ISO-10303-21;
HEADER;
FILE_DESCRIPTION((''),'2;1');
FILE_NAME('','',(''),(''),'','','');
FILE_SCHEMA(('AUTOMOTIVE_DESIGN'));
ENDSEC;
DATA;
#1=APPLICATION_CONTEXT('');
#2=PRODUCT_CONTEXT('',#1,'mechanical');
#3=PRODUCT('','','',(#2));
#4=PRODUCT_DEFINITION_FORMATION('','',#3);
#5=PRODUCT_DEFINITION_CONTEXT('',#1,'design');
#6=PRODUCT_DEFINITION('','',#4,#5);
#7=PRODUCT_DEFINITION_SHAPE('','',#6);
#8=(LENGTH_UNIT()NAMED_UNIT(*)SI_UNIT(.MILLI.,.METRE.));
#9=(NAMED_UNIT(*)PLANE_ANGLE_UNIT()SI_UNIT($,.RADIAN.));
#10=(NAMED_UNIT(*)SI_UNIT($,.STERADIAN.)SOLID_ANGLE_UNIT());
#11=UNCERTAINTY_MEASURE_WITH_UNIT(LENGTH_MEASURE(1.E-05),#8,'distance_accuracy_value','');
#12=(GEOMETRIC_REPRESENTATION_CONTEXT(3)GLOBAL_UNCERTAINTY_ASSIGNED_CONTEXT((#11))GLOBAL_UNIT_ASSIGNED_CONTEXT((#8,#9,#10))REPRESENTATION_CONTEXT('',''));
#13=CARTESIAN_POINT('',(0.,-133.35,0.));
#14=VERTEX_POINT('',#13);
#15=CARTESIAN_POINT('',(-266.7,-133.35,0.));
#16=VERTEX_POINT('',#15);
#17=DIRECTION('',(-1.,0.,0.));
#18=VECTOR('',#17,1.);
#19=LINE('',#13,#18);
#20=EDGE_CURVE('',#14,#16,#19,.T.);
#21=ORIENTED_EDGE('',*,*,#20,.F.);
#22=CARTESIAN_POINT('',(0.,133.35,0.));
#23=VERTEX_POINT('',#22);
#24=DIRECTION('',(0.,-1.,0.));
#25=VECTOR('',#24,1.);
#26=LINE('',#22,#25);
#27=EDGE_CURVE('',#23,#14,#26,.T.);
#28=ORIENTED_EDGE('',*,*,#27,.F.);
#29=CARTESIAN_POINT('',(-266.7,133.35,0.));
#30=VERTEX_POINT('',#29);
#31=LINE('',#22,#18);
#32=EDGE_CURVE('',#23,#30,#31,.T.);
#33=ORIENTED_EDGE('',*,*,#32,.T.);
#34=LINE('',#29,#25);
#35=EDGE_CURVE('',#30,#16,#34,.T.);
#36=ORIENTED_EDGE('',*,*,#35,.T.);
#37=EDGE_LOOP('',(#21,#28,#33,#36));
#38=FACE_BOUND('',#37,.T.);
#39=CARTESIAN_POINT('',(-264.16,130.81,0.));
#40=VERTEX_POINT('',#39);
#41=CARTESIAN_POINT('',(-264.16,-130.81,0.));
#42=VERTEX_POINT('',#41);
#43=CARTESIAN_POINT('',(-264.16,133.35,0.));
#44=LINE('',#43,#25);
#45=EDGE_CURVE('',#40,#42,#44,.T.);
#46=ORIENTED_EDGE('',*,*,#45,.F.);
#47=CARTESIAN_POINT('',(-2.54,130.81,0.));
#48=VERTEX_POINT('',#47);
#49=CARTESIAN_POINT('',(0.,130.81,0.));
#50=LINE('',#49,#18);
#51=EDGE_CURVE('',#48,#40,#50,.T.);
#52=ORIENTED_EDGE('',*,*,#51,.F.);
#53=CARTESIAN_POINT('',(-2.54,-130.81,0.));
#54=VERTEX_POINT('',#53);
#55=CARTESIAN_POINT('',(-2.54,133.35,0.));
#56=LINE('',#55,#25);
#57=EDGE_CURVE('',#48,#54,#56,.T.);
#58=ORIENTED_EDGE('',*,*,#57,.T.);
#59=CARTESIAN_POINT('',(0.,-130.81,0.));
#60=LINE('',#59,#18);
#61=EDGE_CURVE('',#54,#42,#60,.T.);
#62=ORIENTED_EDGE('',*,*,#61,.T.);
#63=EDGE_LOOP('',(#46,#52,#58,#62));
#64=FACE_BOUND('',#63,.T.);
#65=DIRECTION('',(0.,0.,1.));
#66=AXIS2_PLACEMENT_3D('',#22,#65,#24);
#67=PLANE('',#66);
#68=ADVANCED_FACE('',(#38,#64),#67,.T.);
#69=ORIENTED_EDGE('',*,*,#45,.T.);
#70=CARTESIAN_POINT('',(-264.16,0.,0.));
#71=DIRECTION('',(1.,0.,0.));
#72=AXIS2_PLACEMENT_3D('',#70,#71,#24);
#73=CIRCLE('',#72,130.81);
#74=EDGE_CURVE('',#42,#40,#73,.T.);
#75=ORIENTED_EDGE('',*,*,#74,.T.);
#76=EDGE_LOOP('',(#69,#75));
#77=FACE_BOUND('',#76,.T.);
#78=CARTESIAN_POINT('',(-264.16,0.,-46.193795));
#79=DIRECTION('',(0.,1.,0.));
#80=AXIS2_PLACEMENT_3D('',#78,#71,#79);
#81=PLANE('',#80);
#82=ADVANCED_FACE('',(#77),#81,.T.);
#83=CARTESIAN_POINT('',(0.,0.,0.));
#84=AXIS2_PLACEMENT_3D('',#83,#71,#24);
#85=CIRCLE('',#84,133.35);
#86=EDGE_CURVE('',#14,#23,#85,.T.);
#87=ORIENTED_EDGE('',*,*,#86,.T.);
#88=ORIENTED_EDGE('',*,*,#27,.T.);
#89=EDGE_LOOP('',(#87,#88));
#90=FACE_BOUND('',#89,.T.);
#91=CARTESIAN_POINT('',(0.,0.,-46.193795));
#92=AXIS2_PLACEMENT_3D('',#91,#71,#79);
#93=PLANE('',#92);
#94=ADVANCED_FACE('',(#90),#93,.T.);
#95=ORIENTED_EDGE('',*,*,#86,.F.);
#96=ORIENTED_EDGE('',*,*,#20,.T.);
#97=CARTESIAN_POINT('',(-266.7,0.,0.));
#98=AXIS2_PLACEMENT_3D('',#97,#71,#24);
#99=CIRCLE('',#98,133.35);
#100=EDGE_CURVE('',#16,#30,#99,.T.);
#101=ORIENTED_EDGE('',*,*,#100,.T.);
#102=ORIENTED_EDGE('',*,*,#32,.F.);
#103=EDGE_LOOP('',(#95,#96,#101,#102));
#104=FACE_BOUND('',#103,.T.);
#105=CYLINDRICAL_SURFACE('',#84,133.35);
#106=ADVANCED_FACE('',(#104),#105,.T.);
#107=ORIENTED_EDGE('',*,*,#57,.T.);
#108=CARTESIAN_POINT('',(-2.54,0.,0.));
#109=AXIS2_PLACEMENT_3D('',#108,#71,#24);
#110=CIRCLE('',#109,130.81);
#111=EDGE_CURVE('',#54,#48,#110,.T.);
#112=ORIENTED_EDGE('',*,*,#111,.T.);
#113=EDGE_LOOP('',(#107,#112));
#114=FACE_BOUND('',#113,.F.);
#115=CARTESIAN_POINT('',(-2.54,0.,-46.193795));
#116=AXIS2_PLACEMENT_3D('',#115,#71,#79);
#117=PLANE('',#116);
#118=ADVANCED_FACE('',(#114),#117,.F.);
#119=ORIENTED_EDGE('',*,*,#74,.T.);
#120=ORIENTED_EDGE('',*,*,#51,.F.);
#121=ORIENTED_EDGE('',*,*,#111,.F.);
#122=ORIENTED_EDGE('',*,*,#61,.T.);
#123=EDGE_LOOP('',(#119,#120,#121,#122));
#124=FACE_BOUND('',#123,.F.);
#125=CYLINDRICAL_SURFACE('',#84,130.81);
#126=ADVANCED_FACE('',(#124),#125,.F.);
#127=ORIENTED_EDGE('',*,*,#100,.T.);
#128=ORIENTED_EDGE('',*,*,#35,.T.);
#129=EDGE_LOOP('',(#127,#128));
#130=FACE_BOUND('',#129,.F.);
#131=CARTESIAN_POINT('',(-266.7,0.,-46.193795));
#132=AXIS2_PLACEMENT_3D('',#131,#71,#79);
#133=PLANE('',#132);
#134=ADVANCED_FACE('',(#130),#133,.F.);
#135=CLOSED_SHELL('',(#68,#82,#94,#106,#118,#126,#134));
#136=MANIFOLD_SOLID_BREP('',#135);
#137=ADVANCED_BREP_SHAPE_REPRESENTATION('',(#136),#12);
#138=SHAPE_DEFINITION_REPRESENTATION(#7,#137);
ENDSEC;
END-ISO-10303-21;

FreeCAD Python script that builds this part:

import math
import FreeCAD as App
import Part
import Sketcher

V = App.Vector
Q = App.Units.Quantity


def faces_at(feature, points):
    """Names of the faces that lie closest to the given points."""
    faces = feature.Shape.Faces
    near = lambda p: min(range(len(faces)), key=lambda i: faces[i].distToShape(Part.Vertex(*p))[0])
    return sorted({f"Face{near(p) + 1}" for p in points})

doc = App.newDocument("Part")
params = doc.addObject("Spreadsheet::Sheet", "Params")
for row, (alias, value) in enumerate([
    ("sketch1_radius", "5.25 in"),
    ("pad1_length", "10.5 in"),
    ("thickness_wall", "0.1 in"),
], start=1):
    params.set(f"A{row}", alias)
    params.set(f"B{row}", "=" + value)
    params.setAlias(f"B{row}", alias)

body = doc.addObject("PartDesign::Body", "Body")

sketch1 = body.newObject("Sketcher::SketchObject", "Sketch")
sketch1.AttachmentSupport = (doc.getObject("YZ_Plane"), [""])
sketch1.MapMode = "FlatFace"
sketch1.addGeometry([
    Part.LineSegment(V(133.35, 0, 0), V(-133.35, 0, 0)),
    Part.ArcOfCircle(Part.Circle(V(0, 0, 0), V(0, 0, 1), 133.35), math.radians(180), math.radians(360)),
], False)
sketch1.addConstraint([
    Sketcher.Constraint("Coincident", 0, 1, 1, 2),
    Sketcher.Constraint("Coincident", 1, 1, 0, 2),
    Sketcher.Constraint("Horizontal", 0),
    Sketcher.Constraint("Coincident", 1, 3, -1, 1),
    Sketcher.Constraint("PointOnObject", 0, 1, -1),
    Sketcher.Constraint("Radius", 1, Q("5.25 in")),
])
sketch1.setExpression("Constraints[5]", "Params.sketch1_radius")
pad1 = body.newObject("PartDesign::Pad", "Pad")
pad1.Profile = sketch1
pad1.setExpression("Length", "Params.pad1_length")
pad1.Reversed = True
doc.recompute()

thickness = body.newObject("PartDesign::Thickness", "Thickness")
thickness.Base = (pad1, faces_at(pad1, [(-133.35, 0, 0)]))
thickness.setExpression("Value", "Params.thickness_wall")
thickness.Reversed = True
thickness.Join = "Arc"

doc.recompute()
